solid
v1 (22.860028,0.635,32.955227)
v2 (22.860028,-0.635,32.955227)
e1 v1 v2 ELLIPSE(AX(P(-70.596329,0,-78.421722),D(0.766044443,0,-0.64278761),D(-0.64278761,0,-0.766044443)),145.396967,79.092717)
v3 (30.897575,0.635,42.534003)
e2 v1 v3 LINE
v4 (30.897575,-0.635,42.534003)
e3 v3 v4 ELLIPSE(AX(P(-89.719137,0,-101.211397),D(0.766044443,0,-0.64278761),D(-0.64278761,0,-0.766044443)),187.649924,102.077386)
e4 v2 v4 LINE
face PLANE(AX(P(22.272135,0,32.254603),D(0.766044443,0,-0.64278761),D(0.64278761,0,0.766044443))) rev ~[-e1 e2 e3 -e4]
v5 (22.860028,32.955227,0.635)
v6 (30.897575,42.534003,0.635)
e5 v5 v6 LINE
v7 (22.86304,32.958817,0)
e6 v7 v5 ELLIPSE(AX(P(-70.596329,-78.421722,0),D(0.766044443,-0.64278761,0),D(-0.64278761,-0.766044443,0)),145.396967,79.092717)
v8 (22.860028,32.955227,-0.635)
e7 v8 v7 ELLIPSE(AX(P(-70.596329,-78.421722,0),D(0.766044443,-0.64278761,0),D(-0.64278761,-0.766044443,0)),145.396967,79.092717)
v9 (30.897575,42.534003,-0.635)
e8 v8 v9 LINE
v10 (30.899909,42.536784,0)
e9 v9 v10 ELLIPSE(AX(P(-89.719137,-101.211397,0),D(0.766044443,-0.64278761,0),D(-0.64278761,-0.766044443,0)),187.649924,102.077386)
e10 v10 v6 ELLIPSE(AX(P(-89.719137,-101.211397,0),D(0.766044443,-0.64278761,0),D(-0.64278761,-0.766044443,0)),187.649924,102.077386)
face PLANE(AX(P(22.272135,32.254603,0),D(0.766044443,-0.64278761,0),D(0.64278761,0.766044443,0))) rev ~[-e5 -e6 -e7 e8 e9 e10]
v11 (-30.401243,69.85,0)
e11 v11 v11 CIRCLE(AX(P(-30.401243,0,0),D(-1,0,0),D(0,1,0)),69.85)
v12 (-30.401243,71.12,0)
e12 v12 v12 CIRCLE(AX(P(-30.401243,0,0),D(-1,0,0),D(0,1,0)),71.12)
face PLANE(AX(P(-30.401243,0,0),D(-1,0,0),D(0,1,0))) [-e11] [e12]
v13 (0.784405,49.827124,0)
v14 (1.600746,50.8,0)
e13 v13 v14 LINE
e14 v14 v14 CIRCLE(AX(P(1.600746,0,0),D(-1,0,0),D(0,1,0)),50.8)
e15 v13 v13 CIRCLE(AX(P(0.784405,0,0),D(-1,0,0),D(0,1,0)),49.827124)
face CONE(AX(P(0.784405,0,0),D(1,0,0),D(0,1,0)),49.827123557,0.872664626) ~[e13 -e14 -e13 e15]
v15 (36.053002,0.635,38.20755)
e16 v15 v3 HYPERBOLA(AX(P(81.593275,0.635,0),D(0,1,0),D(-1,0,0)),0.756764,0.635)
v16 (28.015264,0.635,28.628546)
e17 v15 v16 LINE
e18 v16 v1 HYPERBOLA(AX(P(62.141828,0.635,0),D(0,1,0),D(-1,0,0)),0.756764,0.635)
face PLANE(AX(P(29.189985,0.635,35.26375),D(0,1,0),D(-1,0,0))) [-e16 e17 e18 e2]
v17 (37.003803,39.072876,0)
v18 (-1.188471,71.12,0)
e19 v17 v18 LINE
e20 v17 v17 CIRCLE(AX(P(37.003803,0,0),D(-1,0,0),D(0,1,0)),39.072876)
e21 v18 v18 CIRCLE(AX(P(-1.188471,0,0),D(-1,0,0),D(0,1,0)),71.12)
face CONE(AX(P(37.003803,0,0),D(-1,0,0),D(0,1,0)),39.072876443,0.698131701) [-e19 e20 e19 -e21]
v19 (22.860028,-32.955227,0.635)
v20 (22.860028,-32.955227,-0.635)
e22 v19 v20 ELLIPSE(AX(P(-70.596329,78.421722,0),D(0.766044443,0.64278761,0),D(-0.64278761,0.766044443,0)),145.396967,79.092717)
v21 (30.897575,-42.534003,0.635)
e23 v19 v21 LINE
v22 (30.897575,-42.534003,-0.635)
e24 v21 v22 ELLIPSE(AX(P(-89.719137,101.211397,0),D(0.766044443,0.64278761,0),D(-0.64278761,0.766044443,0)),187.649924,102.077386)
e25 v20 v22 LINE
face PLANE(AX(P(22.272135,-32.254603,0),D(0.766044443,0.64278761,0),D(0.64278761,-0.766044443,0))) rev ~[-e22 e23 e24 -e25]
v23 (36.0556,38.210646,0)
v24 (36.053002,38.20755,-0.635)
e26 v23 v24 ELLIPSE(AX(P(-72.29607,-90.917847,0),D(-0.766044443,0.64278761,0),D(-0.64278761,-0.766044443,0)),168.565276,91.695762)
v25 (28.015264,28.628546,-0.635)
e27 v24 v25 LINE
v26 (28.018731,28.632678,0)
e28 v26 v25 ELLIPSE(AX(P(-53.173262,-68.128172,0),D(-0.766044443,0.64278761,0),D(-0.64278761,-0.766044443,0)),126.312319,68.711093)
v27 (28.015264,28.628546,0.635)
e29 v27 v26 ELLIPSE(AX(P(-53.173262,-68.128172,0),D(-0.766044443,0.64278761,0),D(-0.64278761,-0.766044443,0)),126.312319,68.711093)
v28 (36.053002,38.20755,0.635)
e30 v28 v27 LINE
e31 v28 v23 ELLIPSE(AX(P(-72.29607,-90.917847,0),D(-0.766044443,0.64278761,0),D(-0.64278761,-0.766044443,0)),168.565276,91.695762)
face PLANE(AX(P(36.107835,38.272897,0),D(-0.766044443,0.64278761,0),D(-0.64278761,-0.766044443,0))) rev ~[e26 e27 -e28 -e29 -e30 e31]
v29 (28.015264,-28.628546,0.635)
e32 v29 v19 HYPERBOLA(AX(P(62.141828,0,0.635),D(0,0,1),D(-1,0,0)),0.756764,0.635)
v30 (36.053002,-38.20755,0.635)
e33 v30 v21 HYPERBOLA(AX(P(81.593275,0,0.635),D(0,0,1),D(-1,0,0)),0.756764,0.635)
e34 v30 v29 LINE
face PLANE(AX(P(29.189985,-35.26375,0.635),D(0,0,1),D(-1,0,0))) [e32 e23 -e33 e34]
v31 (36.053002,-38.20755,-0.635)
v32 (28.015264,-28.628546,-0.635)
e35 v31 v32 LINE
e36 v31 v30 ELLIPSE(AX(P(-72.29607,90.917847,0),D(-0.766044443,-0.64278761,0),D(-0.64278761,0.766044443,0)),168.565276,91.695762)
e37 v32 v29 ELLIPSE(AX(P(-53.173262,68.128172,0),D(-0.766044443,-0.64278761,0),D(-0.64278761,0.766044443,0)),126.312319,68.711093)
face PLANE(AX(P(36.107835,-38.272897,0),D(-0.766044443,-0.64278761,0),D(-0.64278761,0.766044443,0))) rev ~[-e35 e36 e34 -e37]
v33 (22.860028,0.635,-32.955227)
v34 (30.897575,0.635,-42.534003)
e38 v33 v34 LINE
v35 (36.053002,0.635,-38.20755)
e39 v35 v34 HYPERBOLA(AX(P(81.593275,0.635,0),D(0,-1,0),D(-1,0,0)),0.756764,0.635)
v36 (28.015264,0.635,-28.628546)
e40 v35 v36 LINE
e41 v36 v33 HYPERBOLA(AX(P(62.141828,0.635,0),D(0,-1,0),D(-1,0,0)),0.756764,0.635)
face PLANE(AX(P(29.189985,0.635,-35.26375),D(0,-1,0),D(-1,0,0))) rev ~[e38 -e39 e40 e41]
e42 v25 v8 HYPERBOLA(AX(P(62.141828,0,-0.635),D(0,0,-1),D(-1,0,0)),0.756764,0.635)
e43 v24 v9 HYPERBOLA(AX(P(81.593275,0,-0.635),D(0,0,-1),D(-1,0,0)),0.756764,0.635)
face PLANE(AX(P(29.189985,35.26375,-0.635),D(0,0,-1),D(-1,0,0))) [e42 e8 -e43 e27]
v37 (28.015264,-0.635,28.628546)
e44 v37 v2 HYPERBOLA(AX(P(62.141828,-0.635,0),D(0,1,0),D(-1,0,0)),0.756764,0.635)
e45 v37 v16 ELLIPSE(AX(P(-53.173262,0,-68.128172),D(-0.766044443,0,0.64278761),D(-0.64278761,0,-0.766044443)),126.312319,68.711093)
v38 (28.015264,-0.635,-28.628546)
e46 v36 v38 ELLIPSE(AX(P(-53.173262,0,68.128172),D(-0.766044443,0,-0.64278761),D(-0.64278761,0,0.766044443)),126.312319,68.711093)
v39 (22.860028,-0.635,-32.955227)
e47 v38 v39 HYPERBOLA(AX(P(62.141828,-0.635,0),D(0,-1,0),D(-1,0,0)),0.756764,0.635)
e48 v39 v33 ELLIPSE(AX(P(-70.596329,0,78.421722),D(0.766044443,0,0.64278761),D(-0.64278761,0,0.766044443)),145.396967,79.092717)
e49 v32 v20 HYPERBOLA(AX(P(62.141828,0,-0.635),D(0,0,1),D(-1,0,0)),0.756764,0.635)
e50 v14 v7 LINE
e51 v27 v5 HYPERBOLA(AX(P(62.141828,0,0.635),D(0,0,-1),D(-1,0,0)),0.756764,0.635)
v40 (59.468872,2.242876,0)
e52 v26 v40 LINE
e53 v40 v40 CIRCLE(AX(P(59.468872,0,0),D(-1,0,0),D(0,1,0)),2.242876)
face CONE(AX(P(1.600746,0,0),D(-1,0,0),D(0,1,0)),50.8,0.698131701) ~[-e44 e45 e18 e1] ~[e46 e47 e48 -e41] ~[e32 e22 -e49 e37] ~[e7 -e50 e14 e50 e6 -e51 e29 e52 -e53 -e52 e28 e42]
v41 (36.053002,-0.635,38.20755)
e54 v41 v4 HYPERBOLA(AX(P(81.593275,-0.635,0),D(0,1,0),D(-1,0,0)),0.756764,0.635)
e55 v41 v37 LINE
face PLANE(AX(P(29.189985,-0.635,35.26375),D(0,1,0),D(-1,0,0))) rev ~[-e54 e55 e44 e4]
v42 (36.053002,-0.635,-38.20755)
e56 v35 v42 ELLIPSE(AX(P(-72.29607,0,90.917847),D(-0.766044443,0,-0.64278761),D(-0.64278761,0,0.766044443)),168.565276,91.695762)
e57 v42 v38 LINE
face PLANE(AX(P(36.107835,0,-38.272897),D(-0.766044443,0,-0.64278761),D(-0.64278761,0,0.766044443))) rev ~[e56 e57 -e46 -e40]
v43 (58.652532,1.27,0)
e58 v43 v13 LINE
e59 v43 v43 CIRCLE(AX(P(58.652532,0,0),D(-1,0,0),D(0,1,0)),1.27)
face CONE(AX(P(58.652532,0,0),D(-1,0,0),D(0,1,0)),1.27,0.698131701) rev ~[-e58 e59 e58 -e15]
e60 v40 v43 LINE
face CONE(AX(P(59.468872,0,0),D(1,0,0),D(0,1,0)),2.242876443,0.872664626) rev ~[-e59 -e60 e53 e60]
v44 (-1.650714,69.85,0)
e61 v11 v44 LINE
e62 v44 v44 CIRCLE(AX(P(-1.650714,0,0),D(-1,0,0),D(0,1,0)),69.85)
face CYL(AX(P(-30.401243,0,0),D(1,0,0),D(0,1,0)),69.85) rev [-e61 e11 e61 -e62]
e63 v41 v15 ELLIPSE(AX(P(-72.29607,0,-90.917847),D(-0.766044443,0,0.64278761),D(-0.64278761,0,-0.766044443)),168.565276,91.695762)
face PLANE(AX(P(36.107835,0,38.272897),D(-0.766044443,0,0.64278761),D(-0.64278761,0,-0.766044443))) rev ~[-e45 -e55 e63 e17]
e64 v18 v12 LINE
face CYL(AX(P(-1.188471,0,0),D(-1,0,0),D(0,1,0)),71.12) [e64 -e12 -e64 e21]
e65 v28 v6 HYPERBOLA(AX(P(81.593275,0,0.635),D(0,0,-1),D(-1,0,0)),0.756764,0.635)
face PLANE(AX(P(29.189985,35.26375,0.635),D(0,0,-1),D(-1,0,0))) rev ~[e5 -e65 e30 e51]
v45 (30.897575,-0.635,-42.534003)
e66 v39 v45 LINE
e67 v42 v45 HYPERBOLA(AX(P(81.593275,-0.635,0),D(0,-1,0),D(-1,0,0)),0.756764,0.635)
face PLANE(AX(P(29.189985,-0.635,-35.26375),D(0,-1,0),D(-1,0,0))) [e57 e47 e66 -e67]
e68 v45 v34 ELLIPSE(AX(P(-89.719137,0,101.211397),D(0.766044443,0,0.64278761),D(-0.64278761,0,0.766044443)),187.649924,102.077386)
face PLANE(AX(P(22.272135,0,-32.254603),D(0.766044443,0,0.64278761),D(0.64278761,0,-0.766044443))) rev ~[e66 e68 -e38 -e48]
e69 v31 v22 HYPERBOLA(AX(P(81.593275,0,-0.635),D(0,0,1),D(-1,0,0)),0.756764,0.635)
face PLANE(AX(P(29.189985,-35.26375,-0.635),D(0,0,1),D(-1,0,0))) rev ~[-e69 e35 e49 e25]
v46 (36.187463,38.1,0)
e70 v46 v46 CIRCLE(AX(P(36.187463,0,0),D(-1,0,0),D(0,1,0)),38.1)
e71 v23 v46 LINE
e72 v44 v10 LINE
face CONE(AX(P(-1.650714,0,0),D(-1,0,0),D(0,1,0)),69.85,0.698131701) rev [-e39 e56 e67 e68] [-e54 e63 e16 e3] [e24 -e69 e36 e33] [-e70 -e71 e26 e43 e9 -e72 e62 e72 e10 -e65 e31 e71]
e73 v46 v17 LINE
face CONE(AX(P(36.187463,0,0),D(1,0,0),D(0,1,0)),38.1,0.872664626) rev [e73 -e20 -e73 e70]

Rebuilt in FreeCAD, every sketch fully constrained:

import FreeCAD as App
import Part
import Sketcher
from FreeCAD import Vector
Q = App.Units.Quantity


def add_polygon(sketch, points):
    """Adds a closed chain of lines whose ends are joined by coincident constraints."""
    first, n = sketch.GeometryCount, len(points)
    for a, b in zip(points, points[1:] + points[:1]):
        sketch.addGeometry(Part.LineSegment(App.Vector(*a, 0), App.Vector(*b, 0)), False)
    for i in range(n):
        sketch.addConstraint(Sketcher.Constraint("Coincident", first + i, 2, first + (i + 1) % n, 1))

doc = App.newDocument("Part")
body = doc.addObject("PartDesign::Body", "Body")

# Sketch on XY plane
sketch1 = doc.addObject("Sketcher::SketchObject", "Sketch")
body.addObject(sketch1)
sketch1.AttachmentSupport = (doc.XY_Plane, [""])
sketch1.MapMode = "FlatFace"
add_polygon(sketch1, [(-30.401243, 69.85), (-1.650714, 69.85), (36.187463, 38.1), (37.003803, 39.072876), (-1.188471, 71.12), (-30.401243, 71.12)])  # lines 0-5
sketch1.addConstraint([
    Sketcher.Constraint("Horizontal", 0),
    Sketcher.Constraint("Horizontal", 4),
    Sketcher.Constraint("Vertical", 5),
    Sketcher.Constraint("Perpendicular", 1, 2),
    Sketcher.Constraint("Perpendicular", 2, 3),
    Sketcher.Constraint("Angle", 1, Q("-40 deg")),
    Sketcher.Constraint("DistanceY", 5, 2, 5, 1, Q("0.05 in")),
    Sketcher.Constraint("DistanceY", -1, 1, 1, 2, Q("1.5 in")),
    Sketcher.Constraint("DistanceY", -1, 1, 3, 2, Q("2.8 in")),
    Sketcher.Constraint("Distance", 2, Q("0.05 in")),
    Sketcher.Constraint("DistanceX", 0, 1, 0, 2, 28.750529),
    Sketcher.Constraint("DistanceX", 3, 2, -1, 1, 1.188471),
])
revolution = doc.addObject("PartDesign::Revolution", "Revolution")
body.addObject(revolution)
revolution.Profile = sketch1
revolution.ReferenceAxis = (sketch1, ["H_Axis"])
revolution.Angle = 360
body2 = doc.addObject("PartDesign::Body", "Body001")

# Sketch on XY plane
sketch2 = doc.addObject("Sketcher::SketchObject", "Sketch001")
body2.addObject(sketch2)
sketch2.AttachmentSupport = (doc.getObject("XY_Plane001"), [""])
sketch2.MapMode = "FlatFace"
add_polygon(sketch2, [(1.600746, 50.8), (0.784405, 49.827124), (58.652532, 1.27), (59.468872, 2.242876)])  # lines 0-3
sketch2.addConstraint([
    Sketcher.Constraint("Perpendicular", 0, 1),
    Sketcher.Constraint("Perpendicular", 1, 2),
    Sketcher.Constraint("Perpendicular", 2, 3),
    Sketcher.Constraint("DistanceY", -1, 1, 3, 2, Q("2 in")),
    Sketcher.Constraint("Angle", 0, Q("-130 deg")),
    Sketcher.Constraint("Distance", 0, Q("0.05 in")),
    Sketcher.Constraint("DistanceY", -1, 1, 1, 2, Q("0.05 in")),
    Sketcher.Constraint("DistanceX", -1, 1, 1, 2, 58.652532),
])
revolution2 = doc.addObject("PartDesign::Revolution", "Revolution001")
body2.addObject(revolution2)
revolution2.Profile = sketch2
revolution2.ReferenceAxis = (sketch2, ["H_Axis"])
revolution2.Angle = 360
body.AllowCompound = True
doc.recompute()

boolean = doc.addObject("PartDesign::Boolean", "Boolean")
body.addObject(boolean)
boolean.Type = "Fuse"
boolean.addObjects([body2])

# Sketch on XY plane
sketch3 = doc.addObject("Sketcher::SketchObject", "Sketch002")
body.addObject(sketch3)
sketch3.AttachmentSupport = (doc.XY_Plane, [""])
sketch3.MapMode = "FlatFace"
add_polygon(sketch3, [(36.107835, 38.272897), (30.952144, 42.599036), (22.272135, 32.254603), (27.427826, 27.928465)])  # lines 0-3
sketch3.addConstraint([
    Sketcher.Constraint("Perpendicular", 0, 1),
    Sketcher.Constraint("Perpendicular", 1, 2),
    Sketcher.Constraint("Perpendicular", 2, 3),
    Sketcher.Constraint("Angle", 0, Q("140 deg")),
    Sketcher.Constraint("DistanceX", 1, 2, 3, 2, 13.835701),
    Sketcher.Constraint("DistanceX", 1, 2, 0, 2, 8.680009),
    Sketcher.Constraint("DistanceX", -1, 1, 0, 2, 30.952144),
    Sketcher.Constraint("DistanceY", -1, 1, 0, 2, 42.599036),
])
pad1 = doc.addObject("PartDesign::Pad", "Pad")
body.addObject(pad1)
pad1.Profile = sketch3
pad1.Length = Q("0.05 in")
pad1.Midplane = True
doc.recompute()

polarpattern = doc.addObject("PartDesign::PolarPattern", "PolarPattern")
body.addObject(polarpattern)
polarpattern.Originals = [pad1]
polarpattern.Axis = (doc.X_Axis, [""])
polarpattern.Angle = 360
polarpattern.Occurrences = 4
body.Tip = polarpattern

doc.recompute()
